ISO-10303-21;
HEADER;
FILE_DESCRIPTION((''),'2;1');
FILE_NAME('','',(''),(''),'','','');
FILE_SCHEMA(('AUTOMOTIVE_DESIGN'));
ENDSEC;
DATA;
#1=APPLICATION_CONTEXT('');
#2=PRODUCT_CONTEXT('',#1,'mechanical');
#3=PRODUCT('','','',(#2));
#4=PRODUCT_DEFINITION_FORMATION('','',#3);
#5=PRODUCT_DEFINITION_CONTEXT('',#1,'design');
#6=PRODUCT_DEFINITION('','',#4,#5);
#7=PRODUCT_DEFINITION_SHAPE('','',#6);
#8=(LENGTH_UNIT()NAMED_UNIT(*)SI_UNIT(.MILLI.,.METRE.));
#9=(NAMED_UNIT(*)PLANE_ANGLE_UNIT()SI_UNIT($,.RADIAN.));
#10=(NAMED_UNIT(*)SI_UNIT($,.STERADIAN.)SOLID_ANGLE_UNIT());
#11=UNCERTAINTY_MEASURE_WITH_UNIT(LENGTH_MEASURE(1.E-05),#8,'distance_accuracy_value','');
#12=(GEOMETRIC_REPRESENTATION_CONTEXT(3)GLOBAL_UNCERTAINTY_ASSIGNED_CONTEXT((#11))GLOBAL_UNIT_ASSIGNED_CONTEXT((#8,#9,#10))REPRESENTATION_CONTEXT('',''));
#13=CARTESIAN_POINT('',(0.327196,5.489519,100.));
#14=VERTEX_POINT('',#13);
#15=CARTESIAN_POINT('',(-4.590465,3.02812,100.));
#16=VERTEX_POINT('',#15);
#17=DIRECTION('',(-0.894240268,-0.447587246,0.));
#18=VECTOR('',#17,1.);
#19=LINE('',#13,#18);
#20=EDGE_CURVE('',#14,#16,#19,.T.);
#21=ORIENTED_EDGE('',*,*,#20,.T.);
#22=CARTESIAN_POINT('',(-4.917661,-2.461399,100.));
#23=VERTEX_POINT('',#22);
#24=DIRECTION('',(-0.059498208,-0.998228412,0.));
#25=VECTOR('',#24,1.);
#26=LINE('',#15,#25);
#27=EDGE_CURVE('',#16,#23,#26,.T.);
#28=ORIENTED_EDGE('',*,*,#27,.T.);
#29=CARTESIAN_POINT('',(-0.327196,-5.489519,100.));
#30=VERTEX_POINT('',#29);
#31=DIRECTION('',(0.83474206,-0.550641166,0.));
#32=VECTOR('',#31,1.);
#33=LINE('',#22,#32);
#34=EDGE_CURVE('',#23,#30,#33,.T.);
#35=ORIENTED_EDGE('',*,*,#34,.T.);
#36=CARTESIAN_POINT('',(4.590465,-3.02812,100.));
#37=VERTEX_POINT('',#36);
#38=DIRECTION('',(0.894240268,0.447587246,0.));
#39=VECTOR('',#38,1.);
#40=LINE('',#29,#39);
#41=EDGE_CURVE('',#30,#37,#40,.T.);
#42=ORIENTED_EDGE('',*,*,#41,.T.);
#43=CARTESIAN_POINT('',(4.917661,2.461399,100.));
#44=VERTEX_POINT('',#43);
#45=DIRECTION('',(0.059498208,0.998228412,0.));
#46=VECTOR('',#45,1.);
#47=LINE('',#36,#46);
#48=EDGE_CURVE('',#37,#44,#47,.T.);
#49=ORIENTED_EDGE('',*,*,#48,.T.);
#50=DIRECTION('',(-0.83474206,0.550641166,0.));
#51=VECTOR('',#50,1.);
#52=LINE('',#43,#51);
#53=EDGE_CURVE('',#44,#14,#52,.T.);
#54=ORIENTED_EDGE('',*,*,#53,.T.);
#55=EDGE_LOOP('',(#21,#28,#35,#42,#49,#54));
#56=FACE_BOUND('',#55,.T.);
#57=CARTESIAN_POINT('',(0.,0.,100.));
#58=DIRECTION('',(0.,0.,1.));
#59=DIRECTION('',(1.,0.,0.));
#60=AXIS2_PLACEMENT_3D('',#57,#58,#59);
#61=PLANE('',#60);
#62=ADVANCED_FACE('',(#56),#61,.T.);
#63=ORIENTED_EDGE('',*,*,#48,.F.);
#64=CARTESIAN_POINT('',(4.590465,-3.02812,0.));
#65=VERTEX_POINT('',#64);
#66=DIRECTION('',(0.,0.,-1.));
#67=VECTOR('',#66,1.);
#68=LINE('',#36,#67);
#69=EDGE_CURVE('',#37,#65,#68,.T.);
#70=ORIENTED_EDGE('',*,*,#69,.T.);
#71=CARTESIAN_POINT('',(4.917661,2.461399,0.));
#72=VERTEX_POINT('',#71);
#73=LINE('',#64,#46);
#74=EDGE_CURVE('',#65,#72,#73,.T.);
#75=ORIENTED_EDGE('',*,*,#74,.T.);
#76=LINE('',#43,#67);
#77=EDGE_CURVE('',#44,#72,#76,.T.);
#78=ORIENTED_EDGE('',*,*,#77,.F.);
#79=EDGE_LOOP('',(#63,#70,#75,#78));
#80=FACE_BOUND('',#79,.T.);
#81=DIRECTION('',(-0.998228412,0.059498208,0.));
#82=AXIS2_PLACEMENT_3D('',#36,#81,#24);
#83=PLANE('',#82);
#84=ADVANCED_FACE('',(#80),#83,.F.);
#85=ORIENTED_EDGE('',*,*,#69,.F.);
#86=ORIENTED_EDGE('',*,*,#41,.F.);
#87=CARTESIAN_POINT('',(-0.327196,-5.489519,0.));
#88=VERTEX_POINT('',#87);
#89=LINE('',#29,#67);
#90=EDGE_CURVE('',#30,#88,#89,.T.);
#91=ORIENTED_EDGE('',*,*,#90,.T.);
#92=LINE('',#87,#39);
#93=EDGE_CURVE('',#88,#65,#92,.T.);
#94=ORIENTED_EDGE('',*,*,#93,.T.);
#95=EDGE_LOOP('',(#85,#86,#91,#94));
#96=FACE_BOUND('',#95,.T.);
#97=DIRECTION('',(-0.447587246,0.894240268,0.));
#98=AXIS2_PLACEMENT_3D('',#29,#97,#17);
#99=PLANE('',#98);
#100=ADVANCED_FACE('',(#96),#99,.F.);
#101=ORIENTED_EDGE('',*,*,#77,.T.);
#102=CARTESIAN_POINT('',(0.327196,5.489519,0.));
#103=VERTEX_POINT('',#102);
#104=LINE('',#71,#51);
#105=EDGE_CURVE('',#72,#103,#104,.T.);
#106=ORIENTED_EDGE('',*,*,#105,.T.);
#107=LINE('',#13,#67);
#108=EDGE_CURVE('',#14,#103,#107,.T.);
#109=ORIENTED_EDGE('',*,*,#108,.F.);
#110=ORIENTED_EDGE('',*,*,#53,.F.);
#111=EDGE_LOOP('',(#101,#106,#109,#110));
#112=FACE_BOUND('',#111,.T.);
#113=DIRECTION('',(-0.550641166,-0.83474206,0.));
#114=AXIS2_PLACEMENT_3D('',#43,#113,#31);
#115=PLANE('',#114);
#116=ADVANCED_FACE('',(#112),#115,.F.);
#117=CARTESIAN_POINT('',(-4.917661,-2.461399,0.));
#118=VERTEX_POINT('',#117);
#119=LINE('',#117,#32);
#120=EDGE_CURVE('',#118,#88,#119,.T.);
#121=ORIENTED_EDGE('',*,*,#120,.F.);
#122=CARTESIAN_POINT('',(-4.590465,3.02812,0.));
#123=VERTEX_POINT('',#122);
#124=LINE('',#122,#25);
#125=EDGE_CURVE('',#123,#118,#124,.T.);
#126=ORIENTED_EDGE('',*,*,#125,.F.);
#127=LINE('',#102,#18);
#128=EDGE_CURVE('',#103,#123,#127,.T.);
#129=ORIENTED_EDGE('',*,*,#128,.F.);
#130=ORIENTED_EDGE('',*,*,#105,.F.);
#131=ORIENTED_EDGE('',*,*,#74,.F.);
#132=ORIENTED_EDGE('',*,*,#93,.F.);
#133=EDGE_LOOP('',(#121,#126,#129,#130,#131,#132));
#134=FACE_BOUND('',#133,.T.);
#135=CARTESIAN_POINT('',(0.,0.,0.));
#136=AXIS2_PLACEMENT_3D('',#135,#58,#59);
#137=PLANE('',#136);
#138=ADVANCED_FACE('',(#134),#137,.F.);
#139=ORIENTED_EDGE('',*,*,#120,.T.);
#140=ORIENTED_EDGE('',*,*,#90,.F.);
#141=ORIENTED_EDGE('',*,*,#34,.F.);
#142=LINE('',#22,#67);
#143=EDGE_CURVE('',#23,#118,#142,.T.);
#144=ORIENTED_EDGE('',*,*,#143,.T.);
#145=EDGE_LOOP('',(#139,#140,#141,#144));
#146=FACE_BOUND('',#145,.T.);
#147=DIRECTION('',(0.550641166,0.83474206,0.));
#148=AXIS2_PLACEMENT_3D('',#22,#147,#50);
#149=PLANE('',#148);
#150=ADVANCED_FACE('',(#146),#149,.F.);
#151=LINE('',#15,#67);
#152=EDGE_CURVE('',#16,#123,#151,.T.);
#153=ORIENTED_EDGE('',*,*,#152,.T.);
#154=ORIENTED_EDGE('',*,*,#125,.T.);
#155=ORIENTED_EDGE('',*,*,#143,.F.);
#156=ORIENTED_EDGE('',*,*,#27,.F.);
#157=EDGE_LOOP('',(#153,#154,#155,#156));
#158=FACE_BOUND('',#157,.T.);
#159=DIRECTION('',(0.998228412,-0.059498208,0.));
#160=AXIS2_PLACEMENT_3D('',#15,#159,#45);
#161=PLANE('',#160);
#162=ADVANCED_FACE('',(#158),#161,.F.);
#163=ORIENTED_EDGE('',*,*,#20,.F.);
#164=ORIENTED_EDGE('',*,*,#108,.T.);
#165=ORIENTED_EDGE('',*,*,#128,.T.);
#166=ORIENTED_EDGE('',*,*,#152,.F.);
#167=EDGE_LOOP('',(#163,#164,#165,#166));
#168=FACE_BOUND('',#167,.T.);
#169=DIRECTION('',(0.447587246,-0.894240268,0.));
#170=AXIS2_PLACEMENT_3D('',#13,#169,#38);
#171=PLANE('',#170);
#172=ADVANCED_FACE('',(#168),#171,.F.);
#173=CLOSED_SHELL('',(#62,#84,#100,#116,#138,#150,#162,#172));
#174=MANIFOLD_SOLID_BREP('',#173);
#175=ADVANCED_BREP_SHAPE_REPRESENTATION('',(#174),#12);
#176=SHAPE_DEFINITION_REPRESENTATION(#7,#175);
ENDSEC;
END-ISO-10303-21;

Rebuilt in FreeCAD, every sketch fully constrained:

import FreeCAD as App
import Part
import Sketcher

V = App.Vector
Q = App.Units.Quantity

doc = App.newDocument("Part")
body = doc.addObject("PartDesign::Body", "Body")

# Sketch on XY plane
sketch1 = body.newObject("Sketcher::SketchObject", "Sketch")
sketch1.AttachmentSupport = (doc.getObject("XY_Plane"), [""])
sketch1.MapMode = "FlatFace"
sketch1.addGeometry(Part.LineSegment(V(4.917661, 2.461399, 0), V(0.327196, 5.489519, 0)), False)
sketch1.addGeometry(Part.LineSegment(V(0.327196, 5.489519, 0), V(-4.590465, 3.02812, 0)), False)
sketch1.addGeometry(Part.LineSegment(V(-4.590465, 3.02812, 0), V(-4.917661, -2.461399, 0)), False)
sketch1.addGeometry(Part.LineSegment(V(-4.917661, -2.461399, 0), V(-0.327196, -5.489519, 0)), False)
sketch1.addGeometry(Part.LineSegment(V(-0.327196, -5.489519, 0), V(4.590465, -3.02812, 0)), False)
sketch1.addGeometry(Part.LineSegment(V(4.590465, -3.02812, 0), V(4.917661, 2.461399, 0)), False)
sketch1.addConstraint(Sketcher.Constraint("Coincident", 0, 2, 1, 1))
sketch1.addConstraint(Sketcher.Constraint("Coincident", 1, 2, 2, 1))
sketch1.addConstraint(Sketcher.Constraint("Coincident", 2, 2, 3, 1))
sketch1.addConstraint(Sketcher.Constraint("Coincident", 3, 2, 4, 1))
sketch1.addConstraint(Sketcher.Constraint("Coincident", 4, 2, 5, 1))
sketch1.addConstraint(Sketcher.Constraint("Coincident", 5, 2, 0, 1))
sketch1.addConstraint(Sketcher.Constraint("Symmetric", 0, 2, 3, 2, -1, 1))
sketch1.addConstraint(Sketcher.Constraint("Symmetric", 1, 2, 4, 2, -1, 1))
sketch1.addConstraint(Sketcher.Constraint("Symmetric", 2, 2, 5, 2, -1, 1))
sketch1.addConstraint(Sketcher.Constraint("Equal", 0, 1))
sketch1.addConstraint(Sketcher.Constraint("Equal", 1, 2))
sketch1.addConstraint(Sketcher.Constraint("DistanceY", 2, 2, -1, 1, Q("2.461399 mm")))
sketch1.addConstraint(Sketcher.Constraint("DistanceY", 1, 2, 0, 2, Q("2.461399 mm")))
sketch1.addConstraint(Sketcher.Constraint("Distance", 0, Q("5.499261 mm")))
sketch1.addConstraint(Sketcher.Constraint("DistanceY", -1, 1, 0, 2, Q("5.489519 mm")))
pad1 = body.newObject("PartDesign::Pad", "Pad")
pad1.Profile = sketch1
pad1.Length = 100

doc.recompute()
